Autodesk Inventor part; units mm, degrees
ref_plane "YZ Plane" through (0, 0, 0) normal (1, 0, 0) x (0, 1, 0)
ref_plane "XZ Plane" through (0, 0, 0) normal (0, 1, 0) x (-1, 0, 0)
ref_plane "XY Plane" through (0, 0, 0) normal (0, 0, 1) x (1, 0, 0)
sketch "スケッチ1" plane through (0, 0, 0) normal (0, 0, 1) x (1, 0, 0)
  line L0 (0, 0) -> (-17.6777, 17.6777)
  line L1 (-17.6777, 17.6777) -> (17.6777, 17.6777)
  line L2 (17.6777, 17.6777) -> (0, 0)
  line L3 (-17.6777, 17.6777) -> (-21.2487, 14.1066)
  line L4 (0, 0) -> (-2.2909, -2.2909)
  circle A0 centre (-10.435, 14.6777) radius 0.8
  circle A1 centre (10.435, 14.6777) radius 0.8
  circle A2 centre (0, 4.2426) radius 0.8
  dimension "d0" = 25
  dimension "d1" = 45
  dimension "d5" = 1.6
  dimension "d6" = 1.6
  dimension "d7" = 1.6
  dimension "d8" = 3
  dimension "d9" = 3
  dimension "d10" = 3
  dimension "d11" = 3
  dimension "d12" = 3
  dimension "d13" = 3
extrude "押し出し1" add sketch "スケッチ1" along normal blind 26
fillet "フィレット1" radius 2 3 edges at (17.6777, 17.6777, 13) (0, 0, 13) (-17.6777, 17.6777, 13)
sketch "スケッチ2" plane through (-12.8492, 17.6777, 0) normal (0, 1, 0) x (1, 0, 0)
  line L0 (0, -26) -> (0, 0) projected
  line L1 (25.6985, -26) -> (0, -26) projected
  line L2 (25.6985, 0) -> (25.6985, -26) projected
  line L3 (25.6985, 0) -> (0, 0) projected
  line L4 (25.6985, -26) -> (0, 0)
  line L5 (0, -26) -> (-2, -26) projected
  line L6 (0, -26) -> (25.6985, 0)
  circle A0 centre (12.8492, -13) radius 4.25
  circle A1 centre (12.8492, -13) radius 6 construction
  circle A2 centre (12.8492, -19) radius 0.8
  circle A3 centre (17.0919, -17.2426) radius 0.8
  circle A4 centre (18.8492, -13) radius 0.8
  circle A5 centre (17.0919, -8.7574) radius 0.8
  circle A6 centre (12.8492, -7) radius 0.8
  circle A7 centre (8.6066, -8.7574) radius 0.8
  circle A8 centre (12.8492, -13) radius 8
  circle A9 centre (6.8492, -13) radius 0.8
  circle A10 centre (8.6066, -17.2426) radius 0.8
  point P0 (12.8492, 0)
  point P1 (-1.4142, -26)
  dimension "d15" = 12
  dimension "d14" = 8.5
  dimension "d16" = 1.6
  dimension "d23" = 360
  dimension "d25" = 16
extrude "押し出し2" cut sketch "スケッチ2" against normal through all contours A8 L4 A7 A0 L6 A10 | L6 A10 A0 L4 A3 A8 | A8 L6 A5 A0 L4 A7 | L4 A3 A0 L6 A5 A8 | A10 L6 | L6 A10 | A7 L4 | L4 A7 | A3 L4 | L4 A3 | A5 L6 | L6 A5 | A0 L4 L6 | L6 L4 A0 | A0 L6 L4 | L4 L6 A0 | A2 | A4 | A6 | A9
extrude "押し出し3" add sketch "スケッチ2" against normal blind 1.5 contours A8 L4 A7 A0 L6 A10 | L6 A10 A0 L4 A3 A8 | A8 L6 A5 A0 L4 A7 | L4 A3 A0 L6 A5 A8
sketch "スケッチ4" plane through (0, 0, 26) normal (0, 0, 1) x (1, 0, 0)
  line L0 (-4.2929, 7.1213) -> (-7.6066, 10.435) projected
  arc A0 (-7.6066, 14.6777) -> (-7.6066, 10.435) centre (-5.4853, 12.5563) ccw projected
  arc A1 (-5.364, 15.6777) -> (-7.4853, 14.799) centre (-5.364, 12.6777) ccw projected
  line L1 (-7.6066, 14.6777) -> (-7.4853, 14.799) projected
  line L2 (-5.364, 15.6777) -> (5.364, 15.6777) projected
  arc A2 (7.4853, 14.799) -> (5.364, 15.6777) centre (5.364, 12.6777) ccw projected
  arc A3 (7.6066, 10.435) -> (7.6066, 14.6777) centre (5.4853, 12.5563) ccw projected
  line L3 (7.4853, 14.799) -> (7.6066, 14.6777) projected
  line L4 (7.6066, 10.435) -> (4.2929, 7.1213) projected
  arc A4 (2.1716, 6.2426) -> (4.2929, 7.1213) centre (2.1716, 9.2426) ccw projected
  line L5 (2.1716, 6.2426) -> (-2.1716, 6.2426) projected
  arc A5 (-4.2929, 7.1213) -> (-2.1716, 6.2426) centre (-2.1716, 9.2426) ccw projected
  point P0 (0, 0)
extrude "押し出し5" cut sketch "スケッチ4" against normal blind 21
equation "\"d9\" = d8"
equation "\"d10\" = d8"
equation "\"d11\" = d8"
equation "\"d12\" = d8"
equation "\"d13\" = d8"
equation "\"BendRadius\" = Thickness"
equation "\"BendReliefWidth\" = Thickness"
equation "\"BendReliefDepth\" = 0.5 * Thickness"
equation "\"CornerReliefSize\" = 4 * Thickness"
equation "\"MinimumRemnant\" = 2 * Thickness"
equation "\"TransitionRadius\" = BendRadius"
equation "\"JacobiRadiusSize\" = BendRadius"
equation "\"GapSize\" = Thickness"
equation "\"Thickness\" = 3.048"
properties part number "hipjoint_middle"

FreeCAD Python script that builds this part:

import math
import FreeCAD as App
import Part
import Sketcher
from FreeCAD import Vector
Q = App.Units.Quantity


def edges_at(feature, points):
    """Names of the edges that pass closest to the given points."""
    edges = feature.Shape.Edges
    near = lambda p: min(range(len(edges)), key=lambda i: edges[i].distToShape(Part.Vertex(*p))[0])
    return sorted({f"Edge{near(p) + 1}" for p in points})

doc = App.newDocument("Part")
body = doc.addObject("PartDesign::Body", "Body")

sketch1 = body.newObject("Sketcher::SketchObject", "Sketch")
sketch1.AttachmentSupport = (doc.getObject("XY_Plane"), [""])
sketch1.MapMode = "FlatFace"
sketch1.addGeometry([
    Part.LineSegment(Vector(-17.7, 17.7, 0), Vector(0, 0, 0)),
    Part.LineSegment(Vector(0, 0, 0), Vector(17.7, 17.7, 0)),
    Part.LineSegment(Vector(17.7, 17.7, 0), Vector(-17.7, 17.7, 0)),
    Part.Circle(Vector(0, 4.2, 0), Vector(0, 0, 1), 0.8),
    Part.Circle(Vector(-10.4, 14.7, 0), Vector(0, 0, 1), 0.8),
    Part.Circle(Vector(10.4, 14.7, 0), Vector(0, 0, 1), 0.8),
], False)
sketch1.addConstraint([
    Sketcher.Constraint("Coincident", 0, 2, 1, 1),
    Sketcher.Constraint("Coincident", 1, 2, 2, 1),
    Sketcher.Constraint("Coincident", 2, 2, 0, 1),
    Sketcher.Constraint("Horizontal", 2),
    Sketcher.Constraint("Coincident", 0, 2, -1, 1),
    Sketcher.Constraint("Equal", 3, 4),
    Sketcher.Constraint("Equal", 4, 5),
    Sketcher.Constraint("Symmetric", 4, 3, 5, 3, -2),
    Sketcher.Constraint("PointOnObject", 3, 3, -2),
    Sketcher.Constraint("Perpendicular", 0, 1),
    Sketcher.Constraint("Equal", 0, 1),
    Sketcher.Constraint("Diameter", 3, Q("1.6 mm")),
    Sketcher.Constraint("Distance", 0, Q("25 mm")),
    Sketcher.Constraint("DistanceY", 5, 3, 1, 2, Q("3 mm")),
    Sketcher.Constraint("DistanceX", 4, 3, 5, 3, Q("20.87 mm")),
    Sketcher.Constraint("DistanceY", 3, 3, 4, 3, Q("10.435 mm")),
])
pad1 = body.newObject("PartDesign::Pad", "Pad")
pad1.Profile = sketch1
pad1.Length = 26
doc.recompute()

fillet = body.newObject("PartDesign::Fillet", "Fillet")
fillet.Base = (pad1, edges_at(pad1, [(17.678, 17.678, 13), (0, 0, 13), (-17.678, 17.678, 13)]))
fillet.Radius = 2

sketch2 = body.newObject("Sketcher::SketchObject", "Sketch001")
sketch2.AttachmentSupport = (doc.getObject("XZ_Plane"), [""])
sketch2.MapMode = "FlatFace"
sketch2.AttachmentOffset = App.Placement(Vector(0, 0, -17.6777), App.Rotation())
sketch2.addGeometry(Part.Circle(Vector(0, 13, 0), Vector(0, 0, 1), 8), False)
sketch2.addConstraint([
    Sketcher.Constraint("PointOnObject", 0, 3, -2),
    Sketcher.Constraint("Diameter", 0, Q("16 mm")),
    Sketcher.Constraint("DistanceY", -1, 1, 0, 3, Q("13 mm")),
])
pocket1 = body.newObject("PartDesign::Pocket", "Pocket")
pocket1.Profile = sketch2
pocket1.Type = "ThroughAll"
pocket1.Reversed = True

sketch3 = body.newObject("Sketcher::SketchObject", "Sketch002")
sketch3.AttachmentSupport = (doc.getObject("XZ_Plane"), [""])
sketch3.MapMode = "FlatFace"
sketch3.AttachmentOffset = App.Placement(Vector(0, 0, -17.6777), App.Rotation())
sketch3.addGeometry([
    Part.Circle(Vector(0, 13, 0), Vector(0, 0, 1), 8),
    Part.Circle(Vector(-4.2, 8.8, 0), Vector(0, 0, 1), 0.8),
    Part.Circle(Vector(0, 13, 0), Vector(0, 0, 1), 4.2),
    Part.Circle(Vector(-4.2, 17.2, 0), Vector(0, 0, 1), 0.8),
    Part.Circle(Vector(-6, 13, 0), Vector(0, 0, 1), 0.8),
    Part.Circle(Vector(4.2, 8.8, 0), Vector(0, 0, 1), 0.8),
    Part.Circle(Vector(0, 7, 0), Vector(0, 0, 1), 0.8),
    Part.Circle(Vector(0, 19, 0), Vector(0, 0, 1), 0.8),
    Part.Circle(Vector(4.2, 17.2, 0), Vector(0, 0, 1), 0.8),
    Part.Circle(Vector(6, 13, 0), Vector(0, 0, 1), 0.8),
], False)
sketch3.addConstraint([
    Sketcher.Constraint("Coincident", 2, 3, 0, 3),
    Sketcher.Constraint("Equal", 1, 3),
    Sketcher.Constraint("Equal", 3, 4),
    Sketcher.Constraint("Equal", 4, 5),
    Sketcher.Constraint("Equal", 5, 6),
    Sketcher.Constraint("Equal", 6, 7),
    Sketcher.Constraint("Equal", 7, 8),
    Sketcher.Constraint("Equal", 8, 9),
    Sketcher.Constraint("Symmetric", 1, 3, 5, 3, -2),
    Sketcher.Constraint("Symmetric", 3, 3, 8, 3, -2),
    Sketcher.Constraint("Symmetric", 4, 3, 9, 3, -2),
    Sketcher.Constraint("PointOnObject", 0, 3, -2),
    Sketcher.Constraint("PointOnObject", 6, 3, -2),
    Sketcher.Constraint("PointOnObject", 7, 3, -2),
    Sketcher.Constraint("Horizontal", 2, 3, 4, 3),
    Sketcher.Constraint("Vertical", 1, 3, 3, 3),
    Sketcher.Constraint("Diameter", 0, Q("16 mm")),
    Sketcher.Constraint("Diameter", 1, Q("1.6 mm")),
    Sketcher.Constraint("Diameter", 2, Q("8.5 mm")),
    Sketcher.Constraint("DistanceY", -1, 1, 0, 3, Q("13 mm")),
    Sketcher.Constraint("DistanceX", 4, 3, -1, 1, Q("6 mm")),
    Sketcher.Constraint("DistanceY", -1, 1, 6, 3, Q("7 mm")),
    Sketcher.Constraint("DistanceY", -1, 1, 7, 3, Q("19 mm")),
    Sketcher.Constraint("DistanceX", 1, 3, -1, 1, Q("4.2426 mm")),
    Sketcher.Constraint("DistanceY", -1, 1, 1, 3, Q("8.7574 mm")),
    Sketcher.Constraint("DistanceY", -1, 1, 3, 3, Q("17.2426 mm")),
])
pad2 = body.newObject("PartDesign::Pad", "Pad001")
pad2.Profile = sketch3
pad2.Length = 1.5

sketch4 = body.newObject("Sketcher::SketchObject", "Sketch003")
sketch4.AttachmentSupport = (doc.getObject("XY_Plane"), [""])
sketch4.MapMode = "FlatFace"
sketch4.AttachmentOffset = App.Placement(Vector(0, 0, 26), App.Rotation())
sketch4.addGeometry([
    Part.LineSegment(Vector(-7.61, 10.44, 0), Vector(-4.29, 7.12, 0)),
    Part.ArcOfCircle(Part.Circle(Vector(-2.17, 9.24, 0), Vector(0, 0, 1), 3), math.radians(-135), math.radians(-90)),
    Part.LineSegment(Vector(-2.17, 6.24, 0), Vector(2.17, 6.24, 0)),
    Part.ArcOfCircle(Part.Circle(Vector(2.17, 9.24, 0), Vector(0, 0, 1), 3), math.radians(-90), math.radians(-45)),
    Part.LineSegment(Vector(4.29, 7.12, 0), Vector(7.61, 10.44, 0)),
    Part.ArcOfCircle(Part.Circle(Vector(5.49, 12.56, 0), Vector(0, 0, 1), 3), math.radians(-45), math.radians(45)),
    Part.LineSegment(Vector(7.61, 14.68, 0), Vector(7.49, 14.8, 0)),
    Part.ArcOfCircle(Part.Circle(Vector(5.36, 12.68, 0), Vector(0, 0, 1), 3), math.radians(45), math.radians(90)),
    Part.LineSegment(Vector(5.36, 15.68, 0), Vector(-5.36, 15.68, 0)),
    Part.ArcOfCircle(Part.Circle(Vector(-5.36, 12.68, 0), Vector(0, 0, 1), 3), math.radians(90), math.radians(135)),
    Part.LineSegment(Vector(-7.49, 14.8, 0), Vector(-7.61, 14.68, 0)),
    Part.ArcOfCircle(Part.Circle(Vector(-5.49, 12.56, 0), Vector(0, 0, 1), 3), math.radians(135), math.radians(225)),
], False)
sketch4.addConstraint([
    Sketcher.Constraint("Tangent", 0, 2, 1, 1),
    Sketcher.Constraint("Tangent", 1, 2, 2, 1),
    Sketcher.Constraint("Tangent", 2, 2, 3, 1),
    Sketcher.Constraint("Tangent", 3, 2, 4, 1),
    Sketcher.Constraint("Tangent", 4, 2, 5, 1),
    Sketcher.Constraint("Tangent", 5, 2, 6, 1),
    Sketcher.Constraint("Tangent", 6, 2, 7, 1),
    Sketcher.Constraint("Tangent", 7, 2, 8, 1),
    Sketcher.Constraint("Tangent", 8, 2, 9, 1),
    Sketcher.Constraint("Tangent", 9, 2, 10, 1),
    Sketcher.Constraint("Tangent", 10, 2, 11, 1),
    Sketcher.Constraint("Tangent", 11, 2, 0, 1),
    Sketcher.Constraint("Horizontal", 2),
    Sketcher.Constraint("Horizontal", 8),
    Sketcher.Constraint("Equal", 1, 3),
    Sketcher.Constraint("Equal", 3, 5),
    Sketcher.Constraint("Equal", 5, 7),
    Sketcher.Constraint("Equal", 7, 9),
    Sketcher.Constraint("Equal", 9, 11),
    Sketcher.Constraint("Symmetric", 5, 3, 11, 3, -2),
    Sketcher.Constraint("Perpendicular", 0, 4),
    Sketcher.Constraint("Perpendicular", 4, 6),
    Sketcher.Constraint("Perpendicular", 6, 10),
    Sketcher.Constraint("Horizontal", 0, 2, 3, 2),
    Sketcher.Constraint("Radius", 1, Q("3 mm")),
    Sketcher.Constraint("DistanceY", 7, 3, 5, 2, Q("2 mm")),
    Sketcher.Constraint("DistanceX", 8, 2, 8, 1, Q("10.728 mm")),
    Sketcher.Constraint("DistanceX", 2, 1, 2, 2, Q("4.3432 mm")),
    Sketcher.Constraint("DistanceY", -1, 1, 4, 2, Q("10.435 mm")),
])
pocket2 = body.newObject("PartDesign::Pocket", "Pocket001")
pocket2.Profile = sketch4
pocket2.Length = 21

doc.recompute()
